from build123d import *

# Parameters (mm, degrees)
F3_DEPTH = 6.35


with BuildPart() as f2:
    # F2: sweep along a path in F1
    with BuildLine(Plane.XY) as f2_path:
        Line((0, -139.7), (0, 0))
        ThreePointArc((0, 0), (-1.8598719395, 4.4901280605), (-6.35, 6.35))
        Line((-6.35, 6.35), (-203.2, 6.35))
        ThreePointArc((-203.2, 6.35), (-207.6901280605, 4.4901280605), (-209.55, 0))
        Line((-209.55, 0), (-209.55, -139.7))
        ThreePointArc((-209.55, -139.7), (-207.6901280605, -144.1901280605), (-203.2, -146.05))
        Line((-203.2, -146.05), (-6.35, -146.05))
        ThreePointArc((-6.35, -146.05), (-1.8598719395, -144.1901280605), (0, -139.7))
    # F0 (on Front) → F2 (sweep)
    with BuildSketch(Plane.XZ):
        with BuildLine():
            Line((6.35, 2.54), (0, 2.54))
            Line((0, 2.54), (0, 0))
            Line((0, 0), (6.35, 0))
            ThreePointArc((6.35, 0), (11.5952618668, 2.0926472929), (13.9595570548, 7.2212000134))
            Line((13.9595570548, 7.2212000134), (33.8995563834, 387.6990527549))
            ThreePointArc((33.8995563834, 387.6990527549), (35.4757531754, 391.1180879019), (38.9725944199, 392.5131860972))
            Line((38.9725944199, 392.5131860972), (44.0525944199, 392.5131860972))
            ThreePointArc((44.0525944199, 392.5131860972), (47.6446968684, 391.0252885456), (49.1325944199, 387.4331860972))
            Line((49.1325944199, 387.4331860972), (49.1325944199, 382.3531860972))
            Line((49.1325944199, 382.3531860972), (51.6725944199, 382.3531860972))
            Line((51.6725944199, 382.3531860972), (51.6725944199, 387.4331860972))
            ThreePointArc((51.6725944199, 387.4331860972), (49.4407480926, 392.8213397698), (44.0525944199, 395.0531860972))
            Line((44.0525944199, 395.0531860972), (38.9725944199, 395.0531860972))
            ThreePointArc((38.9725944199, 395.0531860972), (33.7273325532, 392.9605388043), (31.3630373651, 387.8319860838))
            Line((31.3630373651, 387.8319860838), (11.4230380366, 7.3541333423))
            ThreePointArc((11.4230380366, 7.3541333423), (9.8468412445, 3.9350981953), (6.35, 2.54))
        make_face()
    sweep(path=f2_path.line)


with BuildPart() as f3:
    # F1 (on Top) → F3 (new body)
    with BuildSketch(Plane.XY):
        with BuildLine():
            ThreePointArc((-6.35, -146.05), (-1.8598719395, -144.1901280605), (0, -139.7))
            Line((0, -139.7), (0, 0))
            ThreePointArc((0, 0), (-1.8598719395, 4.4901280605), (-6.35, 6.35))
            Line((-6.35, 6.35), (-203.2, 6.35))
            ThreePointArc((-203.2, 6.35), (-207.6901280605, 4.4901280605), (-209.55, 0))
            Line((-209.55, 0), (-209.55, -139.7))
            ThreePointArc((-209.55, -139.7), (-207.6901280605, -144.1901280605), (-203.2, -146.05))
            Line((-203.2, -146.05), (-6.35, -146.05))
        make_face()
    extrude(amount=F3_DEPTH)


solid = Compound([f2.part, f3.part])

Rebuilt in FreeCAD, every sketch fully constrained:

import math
import FreeCAD as App
import Part
import Sketcher
Q = App.Units.Quantity

doc = App.newDocument("Part")
body = doc.addObject("PartDesign::Body", "Body")

# Sketch on XZ plane
sketch1 = body.newObject("Sketcher::SketchObject", "Sketch")
sketch1.AttachmentSupport = (doc.getObject("XZ_Plane"), [""])
sketch1.MapMode = "FlatFace"
sketch1.addGeometry(Part.LineSegment(App.Vector(6.3, 2.5, 0), App.Vector(0, 2.5, 0)), False)
sketch1.addGeometry(Part.LineSegment(App.Vector(0, 2.5, 0), App.Vector(0, 0, 0)), False)
sketch1.addGeometry(Part.LineSegment(App.Vector(0, 0, 0), App.Vector(6.3, 0, 0)), False)
sketch1.addGeometry(Part.ArcOfCircle(Part.Circle(App.Vector(6.3, 7.6, 0), App.Vector(0, 0, 1), 7.6), math.radians(-90), math.radians(-3)), False)
sketch1.addGeometry(Part.LineSegment(App.Vector(14, 7.2, 0), App.Vector(33.9, 387.7, 0)), False)
sketch1.addGeometry(Part.ArcOfCircle(Part.Circle(App.Vector(39, 387.4, 0), App.Vector(0, 0, 1), 5.1), math.radians(90), math.radians(177)), False)
sketch1.addGeometry(Part.LineSegment(App.Vector(39, 392.5, 0), App.Vector(44.1, 392.5, 0)), False)
sketch1.addGeometry(Part.ArcOfCircle(Part.Circle(App.Vector(44.1, 387.4, 0), App.Vector(0, 0, 1), 5.1), math.radians(0), math.radians(90)), False)
sketch1.addGeometry(Part.LineSegment(App.Vector(49.1, 387.4, 0), App.Vector(49.1, 382.4, 0)), False)
sketch1.addGeometry(Part.LineSegment(App.Vector(49.1, 382.4, 0), App.Vector(51.7, 382.4, 0)), False)
sketch1.addGeometry(Part.LineSegment(App.Vector(51.7, 382.4, 0), App.Vector(51.7, 387.4, 0)), False)
sketch1.addGeometry(Part.ArcOfCircle(Part.Circle(App.Vector(44.1, 387.4, 0), App.Vector(0, 0, 1), 7.6), math.radians(0), math.radians(90)), False)
sketch1.addGeometry(Part.LineSegment(App.Vector(44.1, 395.1, 0), App.Vector(39, 395.1, 0)), False)
sketch1.addGeometry(Part.ArcOfCircle(Part.Circle(App.Vector(39, 387.4, 0), App.Vector(0, 0, 1), 7.6), math.radians(90), math.radians(177)), False)
sketch1.addGeometry(Part.LineSegment(App.Vector(31.4, 387.8, 0), App.Vector(11.4, 7.4, 0)), False)
sketch1.addGeometry(Part.ArcOfCircle(Part.Circle(App.Vector(6.3, 7.6, 0), App.Vector(0, 0, 1), 5.1), math.radians(-90), math.radians(-3)), False)
sketch1.addConstraint(Sketcher.Constraint("Coincident", 0, 2, 1, 1))
sketch1.addConstraint(Sketcher.Constraint("Coincident", 1, 2, 2, 1))
sketch1.addConstraint(Sketcher.Constraint("Tangent", 2, 2, 3, 1))
sketch1.addConstraint(Sketcher.Constraint("Tangent", 3, 2, 4, 1))
sketch1.addConstraint(Sketcher.Constraint("Tangent", 4, 2, 5, 2))
sketch1.addConstraint(Sketcher.Constraint("Tangent", 5, 1, 6, 1))
sketch1.addConstraint(Sketcher.Constraint("Tangent", 6, 2, 7, 2))
sketch1.addConstraint(Sketcher.Constraint("Tangent", 7, 1, 8, 1))
sketch1.addConstraint(Sketcher.Constraint("Coincident", 8, 2, 9, 1))
sketch1.addConstraint(Sketcher.Constraint("Coincident", 9, 2, 10, 1))
sketch1.addConstraint(Sketcher.Constraint("Tangent", 10, 2, 11, 1))
sketch1.addConstraint(Sketcher.Constraint("Tangent", 11, 2, 12, 1))
sketch1.addConstraint(Sketcher.Constraint("Tangent", 12, 2, 13, 1))
sketch1.addConstraint(Sketcher.Constraint("Tangent", 13, 2, 14, 1))
sketch1.addConstraint(Sketcher.Constraint("Tangent", 14, 2, 15, 2))
sketch1.addConstraint(Sketcher.Constraint("Tangent", 15, 1, 0, 1))
sketch1.addConstraint(Sketcher.Constraint("Horizontal", 0))
sketch1.addConstraint(Sketcher.Constraint("Vertical", 1))
sketch1.addConstraint(Sketcher.Constraint("Horizontal", 2))
sketch1.addConstraint(Sketcher.Constraint("Horizontal", 6))
sketch1.addConstraint(Sketcher.Constraint("Vertical", 8))
sketch1.addConstraint(Sketcher.Constraint("Horizontal", 9))
sketch1.addConstraint(Sketcher.Constraint("Vertical", 10))
sketch1.addConstraint(Sketcher.Constraint("Horizontal", 12))
sketch1.addConstraint(Sketcher.Constraint("Coincident", 1, 2, -1, 1))
sketch1.addConstraint(Sketcher.Constraint("Coincident", 11, 3, 7, 3))
sketch1.addConstraint(Sketcher.Constraint("Coincident", 13, 3, 5, 3))
sketch1.addConstraint(Sketcher.Constraint("Coincident", 15, 3, 3, 3))
sketch1.addConstraint(Sketcher.Constraint("Equal", 5, 7))
sketch1.addConstraint(Sketcher.Constraint("Equal", 3, 11))
sketch1.addConstraint(Sketcher.Constraint("Equal", 7, 15))
sketch1.addConstraint(Sketcher.Constraint("Equal", 12, 8))
sketch1.addConstraint(Sketcher.Constraint("Radius", 3, Q("0.3 in")))
sketch1.addConstraint(Sketcher.Constraint("Radius", 5, Q("0.2 in")))
sketch1.addConstraint(Sketcher.Constraint("Distance", 4, Q("15 in")))
sketch1.addConstraint(Sketcher.Constraint("DistanceX", 6, 1, 6, 2, Q("0.2 in")))
sketch1.addConstraint(Sketcher.Constraint("Angle", 4, Q("87 deg")))
sketch1.addConstraint(Sketcher.Constraint("DistanceX", 0, 2, 0, 1, Q("0.25 in")))

# Sketch on XY plane
sketch2 = body.newObject("Sketcher::SketchObject", "Sketch001")
sketch2.AttachmentSupport = (doc.getObject("XY_Plane"), [""])
sketch2.MapMode = "FlatFace"
sketch2.addGeometry(Part.LineSegment(App.Vector(0, -140, 0), App.Vector(0, 0, 0)), False)
sketch2.addGeometry(Part.ArcOfCircle(Part.Circle(App.Vector(-6, 0, 0), App.Vector(0, 0, 1), 6), math.radians(0), math.radians(90)), False)
sketch2.addGeometry(Part.LineSegment(App.Vector(-6, 6, 0), App.Vector(-203, 6, 0)), False)
sketch2.addGeometry(Part.ArcOfCircle(Part.Circle(App.Vector(-203, 0, 0), App.Vector(0, 0, 1), 6), math.radians(90), math.radians(180)), False)
sketch2.addGeometry(Part.LineSegment(App.Vector(-210, 0, 0), App.Vector(-210, -140, 0)), False)
sketch2.addGeometry(Part.ArcOfCircle(Part.Circle(App.Vector(-203, -140, 0), App.Vector(0, 0, 1), 6), math.radians(180), math.radians(270)), False)
sketch2.addGeometry(Part.LineSegment(App.Vector(-203, -146, 0), App.Vector(-6, -146, 0)), False)
sketch2.addGeometry(Part.ArcOfCircle(Part.Circle(App.Vector(-6, -140, 0), App.Vector(0, 0, 1), 6), math.radians(-90), math.radians(0)), False)
sketch2.addConstraint(Sketcher.Constraint("Tangent", 0, 2, 1, 1))
sketch2.addConstraint(Sketcher.Constraint("Tangent", 1, 2, 2, 1))
sketch2.addConstraint(Sketcher.Constraint("Tangent", 2, 2, 3, 1))
sketch2.addConstraint(Sketcher.Constraint("Tangent", 3, 2, 4, 1))
sketch2.addConstraint(Sketcher.Constraint("Tangent", 4, 2, 5, 1))
sketch2.addConstraint(Sketcher.Constraint("Tangent", 5, 2, 6, 1))
sketch2.addConstraint(Sketcher.Constraint("Tangent", 6, 2, 7, 1))
sketch2.addConstraint(Sketcher.Constraint("Tangent", 7, 2, 0, 1))
sketch2.addConstraint(Sketcher.Constraint("Vertical", 0))
sketch2.addConstraint(Sketcher.Constraint("Horizontal", 2))
sketch2.addConstraint(Sketcher.Constraint("Vertical", 4))
sketch2.addConstraint(Sketcher.Constraint("Horizontal", 6))
sketch2.addConstraint(Sketcher.Constraint("Coincident", 0, 2, -1, 1))
sketch2.addConstraint(Sketcher.Constraint("Equal", 1, 3))
sketch2.addConstraint(Sketcher.Constraint("Equal", 3, 5))
sketch2.addConstraint(Sketcher.Constraint("Equal", 5, 7))
sketch2.addConstraint(Sketcher.Constraint("Radius", 1, Q("0.25 in")))
sketch2.addConstraint(Sketcher.Constraint("DistanceY", 0, 1, 0, 2, Q("5.5 in")))
sketch2.addConstraint(Sketcher.Constraint("DistanceX", 3, 3, -1, 1, Q("8 in")))
doc.recompute()

additivepipe = body.newObject("PartDesign::AdditivePipe", "AdditivePipe")
additivepipe.Profile = sketch1
additivepipe.Spine = (sketch2, ["Edge1", "Edge2", "Edge3", "Edge4", "Edge5", "Edge6", "Edge7", "Edge8"])
body2 = doc.addObject("PartDesign::Body", "Body001")

# Sketch on XY plane
sketch3 = body2.newObject("Sketcher::SketchObject", "Sketch002")
sketch3.AttachmentSupport = (doc.getObject("XY_Plane001"), [""])
sketch3.MapMode = "FlatFace"
sketch3.addGeometry(Part.ArcOfCircle(Part.Circle(App.Vector(-6, -140, 0), App.Vector(0, 0, 1), 6), math.radians(-90), math.radians(0)), False)
sketch3.addGeometry(Part.LineSegment(App.Vector(0, -140, 0), App.Vector(0, 0, 0)), False)
sketch3.addGeometry(Part.ArcOfCircle(Part.Circle(App.Vector(-6, 0, 0), App.Vector(0, 0, 1), 6), math.radians(0), math.radians(90)), False)
sketch3.addGeometry(Part.LineSegment(App.Vector(-6, 6, 0), App.Vector(-203, 6, 0)), False)
sketch3.addGeometry(Part.ArcOfCircle(Part.Circle(App.Vector(-203, 0, 0), App.Vector(0, 0, 1), 6), math.radians(90), math.radians(180)), False)
sketch3.addGeometry(Part.LineSegment(App.Vector(-210, 0, 0), App.Vector(-210, -140, 0)), False)
sketch3.addGeometry(Part.ArcOfCircle(Part.Circle(App.Vector(-203, -140, 0), App.Vector(0, 0, 1), 6), math.radians(180), math.radians(270)), False)
sketch3.addGeometry(Part.LineSegment(App.Vector(-203, -146, 0), App.Vector(-6, -146, 0)), False)
sketch3.addConstraint(Sketcher.Constraint("Tangent", 0, 2, 1, 1))
sketch3.addConstraint(Sketcher.Constraint("Tangent", 1, 2, 2, 1))
sketch3.addConstraint(Sketcher.Constraint("Tangent", 2, 2, 3, 1))
sketch3.addConstraint(Sketcher.Constraint("Tangent", 3, 2, 4, 1))
sketch3.addConstraint(Sketcher.Constraint("Tangent", 4, 2, 5, 1))
sketch3.addConstraint(Sketcher.Constraint("Tangent", 5, 2, 6, 1))
sketch3.addConstraint(Sketcher.Constraint("Tangent", 6, 2, 7, 1))
sketch3.addConstraint(Sketcher.Constraint("Tangent", 7, 2, 0, 1))
sketch3.addConstraint(Sketcher.Constraint("Vertical", 1))
sketch3.addConstraint(Sketcher.Constraint("Horizontal", 3))
sketch3.addConstraint(Sketcher.Constraint("Vertical", 5))
sketch3.addConstraint(Sketcher.Constraint("Horizontal", 7))
sketch3.addConstraint(Sketcher.Constraint("Coincident", 1, 2, -1, 1))
sketch3.addConstraint(Sketcher.Constraint("Equal", 0, 2))
sketch3.addConstraint(Sketcher.Constraint("Equal", 2, 4))
sketch3.addConstraint(Sketcher.Constraint("Equal", 4, 6))
sketch3.addConstraint(Sketcher.Constraint("Radius", 0, Q("0.25 in")))
sketch3.addConstraint(Sketcher.Constraint("DistanceY", 1, 1, 1, 2, Q("5.5 in")))
sketch3.addConstraint(Sketcher.Constraint("DistanceX", 4, 3, -1, 1, Q("8 in")))
pad1 = body2.newObject("PartDesign::Pad", "Pad")
pad1.Profile = sketch3
pad1.Length = Q("0.25 in")

doc.recompute()
